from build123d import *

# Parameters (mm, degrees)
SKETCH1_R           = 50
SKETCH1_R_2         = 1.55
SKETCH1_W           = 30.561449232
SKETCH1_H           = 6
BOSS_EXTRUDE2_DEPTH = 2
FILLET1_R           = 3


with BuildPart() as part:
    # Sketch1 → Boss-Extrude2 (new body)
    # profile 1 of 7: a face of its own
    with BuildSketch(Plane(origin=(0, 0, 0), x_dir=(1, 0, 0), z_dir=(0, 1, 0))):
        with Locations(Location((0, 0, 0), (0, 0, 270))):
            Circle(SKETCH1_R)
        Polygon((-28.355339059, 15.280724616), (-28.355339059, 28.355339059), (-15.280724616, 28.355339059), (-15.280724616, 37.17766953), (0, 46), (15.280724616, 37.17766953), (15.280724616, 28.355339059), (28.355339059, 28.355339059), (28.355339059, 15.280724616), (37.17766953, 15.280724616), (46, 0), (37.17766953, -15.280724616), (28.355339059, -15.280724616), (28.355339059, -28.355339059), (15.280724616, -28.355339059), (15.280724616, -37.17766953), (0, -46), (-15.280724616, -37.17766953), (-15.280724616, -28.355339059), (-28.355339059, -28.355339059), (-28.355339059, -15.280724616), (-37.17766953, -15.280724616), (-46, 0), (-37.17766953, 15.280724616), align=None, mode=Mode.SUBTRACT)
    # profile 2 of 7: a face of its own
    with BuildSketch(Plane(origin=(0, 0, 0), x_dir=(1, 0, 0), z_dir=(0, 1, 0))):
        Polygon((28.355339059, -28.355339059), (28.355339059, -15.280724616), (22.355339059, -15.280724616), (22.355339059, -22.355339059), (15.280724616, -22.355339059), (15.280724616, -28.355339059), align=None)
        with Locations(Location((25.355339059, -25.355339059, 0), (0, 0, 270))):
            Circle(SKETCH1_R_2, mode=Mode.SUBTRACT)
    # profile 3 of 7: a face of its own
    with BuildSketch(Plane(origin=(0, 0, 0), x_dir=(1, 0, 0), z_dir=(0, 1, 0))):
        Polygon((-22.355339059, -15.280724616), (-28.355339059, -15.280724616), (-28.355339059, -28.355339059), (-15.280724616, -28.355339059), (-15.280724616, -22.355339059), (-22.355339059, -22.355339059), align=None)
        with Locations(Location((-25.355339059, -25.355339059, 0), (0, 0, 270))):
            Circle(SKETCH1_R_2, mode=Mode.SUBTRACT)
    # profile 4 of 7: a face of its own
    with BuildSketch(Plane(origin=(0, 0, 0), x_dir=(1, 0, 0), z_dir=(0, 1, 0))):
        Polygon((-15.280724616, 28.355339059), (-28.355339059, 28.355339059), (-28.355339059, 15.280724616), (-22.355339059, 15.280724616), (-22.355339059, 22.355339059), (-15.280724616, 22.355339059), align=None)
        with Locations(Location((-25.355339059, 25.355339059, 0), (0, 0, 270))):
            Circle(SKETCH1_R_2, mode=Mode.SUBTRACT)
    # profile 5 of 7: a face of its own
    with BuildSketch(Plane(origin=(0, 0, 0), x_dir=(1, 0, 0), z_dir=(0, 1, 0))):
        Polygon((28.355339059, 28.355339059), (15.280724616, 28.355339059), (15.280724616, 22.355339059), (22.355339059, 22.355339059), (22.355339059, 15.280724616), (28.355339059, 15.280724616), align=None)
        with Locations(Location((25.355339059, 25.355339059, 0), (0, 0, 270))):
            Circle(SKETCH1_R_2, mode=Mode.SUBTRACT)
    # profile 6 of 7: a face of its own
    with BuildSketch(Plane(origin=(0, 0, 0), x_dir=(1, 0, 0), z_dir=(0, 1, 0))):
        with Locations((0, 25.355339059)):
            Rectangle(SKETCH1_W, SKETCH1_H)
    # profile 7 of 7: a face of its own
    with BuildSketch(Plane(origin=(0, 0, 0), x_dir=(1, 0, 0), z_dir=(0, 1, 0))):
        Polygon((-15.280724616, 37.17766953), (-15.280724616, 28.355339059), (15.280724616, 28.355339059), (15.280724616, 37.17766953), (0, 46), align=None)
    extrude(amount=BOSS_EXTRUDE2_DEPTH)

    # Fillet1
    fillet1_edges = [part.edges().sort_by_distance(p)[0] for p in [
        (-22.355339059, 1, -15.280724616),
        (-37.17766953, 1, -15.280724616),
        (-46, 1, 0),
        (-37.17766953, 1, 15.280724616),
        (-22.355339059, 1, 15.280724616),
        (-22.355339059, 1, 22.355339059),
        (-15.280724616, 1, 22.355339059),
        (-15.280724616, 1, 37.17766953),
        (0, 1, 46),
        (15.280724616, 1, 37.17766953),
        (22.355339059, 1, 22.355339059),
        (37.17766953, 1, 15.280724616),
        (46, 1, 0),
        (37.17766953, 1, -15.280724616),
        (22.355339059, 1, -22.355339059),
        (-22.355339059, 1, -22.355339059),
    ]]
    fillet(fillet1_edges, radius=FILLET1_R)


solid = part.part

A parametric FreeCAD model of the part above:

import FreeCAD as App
import Part
import Sketcher
Q = App.Units.Quantity


def edges_at(feature, points):
    """Names of the edges that pass closest to the given points."""
    edges = feature.Shape.Edges
    near = lambda p: min(range(len(edges)), key=lambda i: edges[i].distToShape(Part.Vertex(*p))[0])
    return sorted({f"Edge{near(p) + 1}" for p in points})


def add_polygon(sketch, points):
    """Adds a closed chain of lines whose ends are joined by coincident constraints."""
    first, n = sketch.GeometryCount, len(points)
    for a, b in zip(points, points[1:] + points[:1]):
        sketch.addGeometry(Part.LineSegment(App.Vector(*a, 0), App.Vector(*b, 0)), False)
    for i in range(n):
        sketch.addConstraint(Sketcher.Constraint("Coincident", first + i, 2, first + (i + 1) % n, 1))

doc = App.newDocument("Part")
body = doc.addObject("PartDesign::Body", "Body")

# Sketch on XZ plane
sketch1 = body.newObject("Sketcher::SketchObject", "Sketch")
sketch1.AttachmentSupport = (doc.getObject("XZ_Plane"), [""])
sketch1.MapMode = "FlatFace"
sketch1.addGeometry(Part.Circle(App.Vector(0, 0, 0), App.Vector(0, 0, 1), 50), False)  # 0
add_polygon(sketch1, [(-37.2, -15.3), (-22.4, -15.3), (-22.4, -22.4), (22.4, -22.4), (22.4, -15.3), (37.2, -15.3), (46, 0), (37.2, 15.3), (22.4, 15.3), (22.4, 22.4), (15.3, 22.4), (15.3, 37.2), (0, 46), (-15.3, 37.2), (-15.3, 22.4), (-22.4, 22.4), (-22.4, 15.3), (-37.2, 15.3), (-46, 0)])  # lines 1-19
sketch1.addGeometry(Part.Circle(App.Vector(-25.4, 25.4, 0), App.Vector(0, 0, 1), 1.6), False)  # 20
sketch1.addGeometry(Part.Circle(App.Vector(25.4, 25.4, 0), App.Vector(0, 0, 1), 1.6), False)  # 21
sketch1.addGeometry(Part.Circle(App.Vector(25.4, -25.4, 0), App.Vector(0, 0, 1), 1.6), False)  # 22
sketch1.addGeometry(Part.Circle(App.Vector(-25.4, -25.4, 0), App.Vector(0, 0, 1), 1.6), False)  # 23
sketch1.addConstraint([
    Sketcher.Constraint("Horizontal", 1),
    Sketcher.Constraint("Vertical", 2),
    Sketcher.Constraint("Horizontal", 3),
    Sketcher.Constraint("Vertical", 4),
    Sketcher.Constraint("Horizontal", 5),
    Sketcher.Constraint("Horizontal", 8),
    Sketcher.Constraint("Vertical", 9),
    Sketcher.Constraint("Horizontal", 10),
    Sketcher.Constraint("Vertical", 11),
    Sketcher.Constraint("Vertical", 14),
    Sketcher.Constraint("Horizontal", 15),
    Sketcher.Constraint("Vertical", 16),
    Sketcher.Constraint("Horizontal", 17),
    Sketcher.Constraint("Coincident", 0, 3, -1, 1),
    Sketcher.Constraint("Equal", 20, 21),
    Sketcher.Constraint("Equal", 21, 22),
    Sketcher.Constraint("Equal", 22, 23),
    Sketcher.Constraint("Symmetric", 20, 3, 22, 3, -1, 1),
    Sketcher.Constraint("Symmetric", 21, 3, 23, 3, -1, 1),
    Sketcher.Constraint("Symmetric", 1, 2, 8, 2, -1, 1),
    Sketcher.Constraint("Symmetric", 3, 2, 15, 2, -1, 1),
    Sketcher.Constraint("Symmetric", 5, 2, 17, 2, -1, 1),
    Sketcher.Constraint("Symmetric", 6, 2, 18, 2, -1, 1),
    Sketcher.Constraint("Symmetric", 20, 3, 21, 3, -2),
    Sketcher.Constraint("Symmetric", 1, 2, 4, 2, -2),
    Sketcher.Constraint("Symmetric", 11, 2, 13, 2, -2),
    Sketcher.Constraint("PointOnObject", 6, 2, -1),
    Sketcher.Constraint("PointOnObject", 12, 2, -2),
    Sketcher.Constraint("Perpendicular", 6, 12),
    Sketcher.Constraint("Perpendicular", 7, 13),
    Sketcher.Constraint("Perpendicular", 13, 19),
    Sketcher.Constraint("Horizontal", 10, 2, 14, 2),
    Sketcher.Constraint("Equal", 15, 2),
    Sketcher.Constraint("Equal", 17, 11),
    Sketcher.Constraint("Equal", 7, 12),
    Sketcher.Constraint("Diameter", 0, 100.0),
    Sketcher.Constraint("Diameter", 20, 3.1),
    Sketcher.Constraint("Angle", 6, Q("60 deg")),
    Sketcher.Constraint("DistanceX", -1, 1, 6, 2, 46.0),
    Sketcher.Constraint("DistanceX", 23, 3, 1, 2, 3.0),
    Sketcher.Constraint("DistanceY", 23, 3, 2, 2, 3.0),
    Sketcher.Constraint("DistanceX", 1, 1, 1, 2, 14.82233),
    Sketcher.Constraint("DistanceX", 3, 1, 3, 2, 44.710678),
])
pad1 = body.newObject("PartDesign::Pad", "Pad")
pad1.Profile = sketch1
pad1.Length = 2
pad1.Reversed = True
doc.recompute()

fillet = body.newObject("PartDesign::Fillet", "Fillet")
fillet.Base = (pad1, edges_at(pad1, [
    (-22.355, 1, -15.281),
    (-37.178, 1, -15.281),
    (-46, 1, 0),
    (-37.178, 1, 15.281),
    (-22.355, 1, 15.281),
    (-22.355, 1, 22.355),
    (-15.281, 1, 22.355),
    (-15.281, 1, 37.178),
    (0, 1, 46),
    (15.281, 1, 37.178),
    (22.355, 1, 22.355),
    (37.178, 1, 15.281),
    (46, 1, 0),
    (37.178, 1, -15.281),
    (22.355, 1, -22.355),
    (-22.355, 1, -22.355),
]))
fillet.Radius = 3

doc.recompute()
